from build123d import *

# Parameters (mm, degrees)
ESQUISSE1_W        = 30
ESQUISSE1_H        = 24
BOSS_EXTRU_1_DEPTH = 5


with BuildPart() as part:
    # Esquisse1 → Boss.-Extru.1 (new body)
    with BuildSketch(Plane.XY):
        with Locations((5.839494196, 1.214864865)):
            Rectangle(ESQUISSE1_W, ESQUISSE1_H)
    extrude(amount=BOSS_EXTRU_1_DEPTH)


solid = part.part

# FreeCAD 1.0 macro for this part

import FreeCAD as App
import Part
import Sketcher

V = App.Vector

doc = App.newDocument("Part")
body = doc.addObject("PartDesign::Body", "Body")

# Sketch on XY plane
sketch1 = body.newObject("Sketcher::SketchObject", "Sketch")
sketch1.AttachmentSupport = (doc.getObject("XY_Plane"), [""])
sketch1.MapMode = "FlatFace"
sketch1.addGeometry(Part.LineSegment(V(-9, 13, 0), V(-9, -11, 0)), False)
sketch1.addGeometry(Part.LineSegment(V(-9, -11, 0), V(21, -11, 0)), False)
sketch1.addGeometry(Part.LineSegment(V(21, -11, 0), V(21, 13, 0)), False)
sketch1.addGeometry(Part.LineSegment(V(21, 13, 0), V(-9, 13, 0)), False)
sketch1.addConstraint(Sketcher.Constraint("Coincident", 0, 2, 1, 1))
sketch1.addConstraint(Sketcher.Constraint("Coincident", 1, 2, 2, 1))
sketch1.addConstraint(Sketcher.Constraint("Coincident", 2, 2, 3, 1))
sketch1.addConstraint(Sketcher.Constraint("Coincident", 3, 2, 0, 1))
sketch1.addConstraint(Sketcher.Constraint("Vertical", 0))
sketch1.addConstraint(Sketcher.Constraint("Horizontal", 1))
sketch1.addConstraint(Sketcher.Constraint("Vertical", 2))
sketch1.addConstraint(Sketcher.Constraint("Horizontal", 3))
sketch1.addConstraint(Sketcher.Constraint("DistanceX", 1, 1, 1, 2, 30.0))
sketch1.addConstraint(Sketcher.Constraint("DistanceY", 0, 2, 0, 1, 24.0))
sketch1.addConstraint(Sketcher.Constraint("DistanceX", 0, 2, -1, 1, 9.160506))
sketch1.addConstraint(Sketcher.Constraint("DistanceY", 0, 2, -1, 1, 10.785135))
pad1 = body.newObject("PartDesign::Pad", "Pad")
pad1.Profile = sketch1
pad1.Length = 5

doc.recompute()
